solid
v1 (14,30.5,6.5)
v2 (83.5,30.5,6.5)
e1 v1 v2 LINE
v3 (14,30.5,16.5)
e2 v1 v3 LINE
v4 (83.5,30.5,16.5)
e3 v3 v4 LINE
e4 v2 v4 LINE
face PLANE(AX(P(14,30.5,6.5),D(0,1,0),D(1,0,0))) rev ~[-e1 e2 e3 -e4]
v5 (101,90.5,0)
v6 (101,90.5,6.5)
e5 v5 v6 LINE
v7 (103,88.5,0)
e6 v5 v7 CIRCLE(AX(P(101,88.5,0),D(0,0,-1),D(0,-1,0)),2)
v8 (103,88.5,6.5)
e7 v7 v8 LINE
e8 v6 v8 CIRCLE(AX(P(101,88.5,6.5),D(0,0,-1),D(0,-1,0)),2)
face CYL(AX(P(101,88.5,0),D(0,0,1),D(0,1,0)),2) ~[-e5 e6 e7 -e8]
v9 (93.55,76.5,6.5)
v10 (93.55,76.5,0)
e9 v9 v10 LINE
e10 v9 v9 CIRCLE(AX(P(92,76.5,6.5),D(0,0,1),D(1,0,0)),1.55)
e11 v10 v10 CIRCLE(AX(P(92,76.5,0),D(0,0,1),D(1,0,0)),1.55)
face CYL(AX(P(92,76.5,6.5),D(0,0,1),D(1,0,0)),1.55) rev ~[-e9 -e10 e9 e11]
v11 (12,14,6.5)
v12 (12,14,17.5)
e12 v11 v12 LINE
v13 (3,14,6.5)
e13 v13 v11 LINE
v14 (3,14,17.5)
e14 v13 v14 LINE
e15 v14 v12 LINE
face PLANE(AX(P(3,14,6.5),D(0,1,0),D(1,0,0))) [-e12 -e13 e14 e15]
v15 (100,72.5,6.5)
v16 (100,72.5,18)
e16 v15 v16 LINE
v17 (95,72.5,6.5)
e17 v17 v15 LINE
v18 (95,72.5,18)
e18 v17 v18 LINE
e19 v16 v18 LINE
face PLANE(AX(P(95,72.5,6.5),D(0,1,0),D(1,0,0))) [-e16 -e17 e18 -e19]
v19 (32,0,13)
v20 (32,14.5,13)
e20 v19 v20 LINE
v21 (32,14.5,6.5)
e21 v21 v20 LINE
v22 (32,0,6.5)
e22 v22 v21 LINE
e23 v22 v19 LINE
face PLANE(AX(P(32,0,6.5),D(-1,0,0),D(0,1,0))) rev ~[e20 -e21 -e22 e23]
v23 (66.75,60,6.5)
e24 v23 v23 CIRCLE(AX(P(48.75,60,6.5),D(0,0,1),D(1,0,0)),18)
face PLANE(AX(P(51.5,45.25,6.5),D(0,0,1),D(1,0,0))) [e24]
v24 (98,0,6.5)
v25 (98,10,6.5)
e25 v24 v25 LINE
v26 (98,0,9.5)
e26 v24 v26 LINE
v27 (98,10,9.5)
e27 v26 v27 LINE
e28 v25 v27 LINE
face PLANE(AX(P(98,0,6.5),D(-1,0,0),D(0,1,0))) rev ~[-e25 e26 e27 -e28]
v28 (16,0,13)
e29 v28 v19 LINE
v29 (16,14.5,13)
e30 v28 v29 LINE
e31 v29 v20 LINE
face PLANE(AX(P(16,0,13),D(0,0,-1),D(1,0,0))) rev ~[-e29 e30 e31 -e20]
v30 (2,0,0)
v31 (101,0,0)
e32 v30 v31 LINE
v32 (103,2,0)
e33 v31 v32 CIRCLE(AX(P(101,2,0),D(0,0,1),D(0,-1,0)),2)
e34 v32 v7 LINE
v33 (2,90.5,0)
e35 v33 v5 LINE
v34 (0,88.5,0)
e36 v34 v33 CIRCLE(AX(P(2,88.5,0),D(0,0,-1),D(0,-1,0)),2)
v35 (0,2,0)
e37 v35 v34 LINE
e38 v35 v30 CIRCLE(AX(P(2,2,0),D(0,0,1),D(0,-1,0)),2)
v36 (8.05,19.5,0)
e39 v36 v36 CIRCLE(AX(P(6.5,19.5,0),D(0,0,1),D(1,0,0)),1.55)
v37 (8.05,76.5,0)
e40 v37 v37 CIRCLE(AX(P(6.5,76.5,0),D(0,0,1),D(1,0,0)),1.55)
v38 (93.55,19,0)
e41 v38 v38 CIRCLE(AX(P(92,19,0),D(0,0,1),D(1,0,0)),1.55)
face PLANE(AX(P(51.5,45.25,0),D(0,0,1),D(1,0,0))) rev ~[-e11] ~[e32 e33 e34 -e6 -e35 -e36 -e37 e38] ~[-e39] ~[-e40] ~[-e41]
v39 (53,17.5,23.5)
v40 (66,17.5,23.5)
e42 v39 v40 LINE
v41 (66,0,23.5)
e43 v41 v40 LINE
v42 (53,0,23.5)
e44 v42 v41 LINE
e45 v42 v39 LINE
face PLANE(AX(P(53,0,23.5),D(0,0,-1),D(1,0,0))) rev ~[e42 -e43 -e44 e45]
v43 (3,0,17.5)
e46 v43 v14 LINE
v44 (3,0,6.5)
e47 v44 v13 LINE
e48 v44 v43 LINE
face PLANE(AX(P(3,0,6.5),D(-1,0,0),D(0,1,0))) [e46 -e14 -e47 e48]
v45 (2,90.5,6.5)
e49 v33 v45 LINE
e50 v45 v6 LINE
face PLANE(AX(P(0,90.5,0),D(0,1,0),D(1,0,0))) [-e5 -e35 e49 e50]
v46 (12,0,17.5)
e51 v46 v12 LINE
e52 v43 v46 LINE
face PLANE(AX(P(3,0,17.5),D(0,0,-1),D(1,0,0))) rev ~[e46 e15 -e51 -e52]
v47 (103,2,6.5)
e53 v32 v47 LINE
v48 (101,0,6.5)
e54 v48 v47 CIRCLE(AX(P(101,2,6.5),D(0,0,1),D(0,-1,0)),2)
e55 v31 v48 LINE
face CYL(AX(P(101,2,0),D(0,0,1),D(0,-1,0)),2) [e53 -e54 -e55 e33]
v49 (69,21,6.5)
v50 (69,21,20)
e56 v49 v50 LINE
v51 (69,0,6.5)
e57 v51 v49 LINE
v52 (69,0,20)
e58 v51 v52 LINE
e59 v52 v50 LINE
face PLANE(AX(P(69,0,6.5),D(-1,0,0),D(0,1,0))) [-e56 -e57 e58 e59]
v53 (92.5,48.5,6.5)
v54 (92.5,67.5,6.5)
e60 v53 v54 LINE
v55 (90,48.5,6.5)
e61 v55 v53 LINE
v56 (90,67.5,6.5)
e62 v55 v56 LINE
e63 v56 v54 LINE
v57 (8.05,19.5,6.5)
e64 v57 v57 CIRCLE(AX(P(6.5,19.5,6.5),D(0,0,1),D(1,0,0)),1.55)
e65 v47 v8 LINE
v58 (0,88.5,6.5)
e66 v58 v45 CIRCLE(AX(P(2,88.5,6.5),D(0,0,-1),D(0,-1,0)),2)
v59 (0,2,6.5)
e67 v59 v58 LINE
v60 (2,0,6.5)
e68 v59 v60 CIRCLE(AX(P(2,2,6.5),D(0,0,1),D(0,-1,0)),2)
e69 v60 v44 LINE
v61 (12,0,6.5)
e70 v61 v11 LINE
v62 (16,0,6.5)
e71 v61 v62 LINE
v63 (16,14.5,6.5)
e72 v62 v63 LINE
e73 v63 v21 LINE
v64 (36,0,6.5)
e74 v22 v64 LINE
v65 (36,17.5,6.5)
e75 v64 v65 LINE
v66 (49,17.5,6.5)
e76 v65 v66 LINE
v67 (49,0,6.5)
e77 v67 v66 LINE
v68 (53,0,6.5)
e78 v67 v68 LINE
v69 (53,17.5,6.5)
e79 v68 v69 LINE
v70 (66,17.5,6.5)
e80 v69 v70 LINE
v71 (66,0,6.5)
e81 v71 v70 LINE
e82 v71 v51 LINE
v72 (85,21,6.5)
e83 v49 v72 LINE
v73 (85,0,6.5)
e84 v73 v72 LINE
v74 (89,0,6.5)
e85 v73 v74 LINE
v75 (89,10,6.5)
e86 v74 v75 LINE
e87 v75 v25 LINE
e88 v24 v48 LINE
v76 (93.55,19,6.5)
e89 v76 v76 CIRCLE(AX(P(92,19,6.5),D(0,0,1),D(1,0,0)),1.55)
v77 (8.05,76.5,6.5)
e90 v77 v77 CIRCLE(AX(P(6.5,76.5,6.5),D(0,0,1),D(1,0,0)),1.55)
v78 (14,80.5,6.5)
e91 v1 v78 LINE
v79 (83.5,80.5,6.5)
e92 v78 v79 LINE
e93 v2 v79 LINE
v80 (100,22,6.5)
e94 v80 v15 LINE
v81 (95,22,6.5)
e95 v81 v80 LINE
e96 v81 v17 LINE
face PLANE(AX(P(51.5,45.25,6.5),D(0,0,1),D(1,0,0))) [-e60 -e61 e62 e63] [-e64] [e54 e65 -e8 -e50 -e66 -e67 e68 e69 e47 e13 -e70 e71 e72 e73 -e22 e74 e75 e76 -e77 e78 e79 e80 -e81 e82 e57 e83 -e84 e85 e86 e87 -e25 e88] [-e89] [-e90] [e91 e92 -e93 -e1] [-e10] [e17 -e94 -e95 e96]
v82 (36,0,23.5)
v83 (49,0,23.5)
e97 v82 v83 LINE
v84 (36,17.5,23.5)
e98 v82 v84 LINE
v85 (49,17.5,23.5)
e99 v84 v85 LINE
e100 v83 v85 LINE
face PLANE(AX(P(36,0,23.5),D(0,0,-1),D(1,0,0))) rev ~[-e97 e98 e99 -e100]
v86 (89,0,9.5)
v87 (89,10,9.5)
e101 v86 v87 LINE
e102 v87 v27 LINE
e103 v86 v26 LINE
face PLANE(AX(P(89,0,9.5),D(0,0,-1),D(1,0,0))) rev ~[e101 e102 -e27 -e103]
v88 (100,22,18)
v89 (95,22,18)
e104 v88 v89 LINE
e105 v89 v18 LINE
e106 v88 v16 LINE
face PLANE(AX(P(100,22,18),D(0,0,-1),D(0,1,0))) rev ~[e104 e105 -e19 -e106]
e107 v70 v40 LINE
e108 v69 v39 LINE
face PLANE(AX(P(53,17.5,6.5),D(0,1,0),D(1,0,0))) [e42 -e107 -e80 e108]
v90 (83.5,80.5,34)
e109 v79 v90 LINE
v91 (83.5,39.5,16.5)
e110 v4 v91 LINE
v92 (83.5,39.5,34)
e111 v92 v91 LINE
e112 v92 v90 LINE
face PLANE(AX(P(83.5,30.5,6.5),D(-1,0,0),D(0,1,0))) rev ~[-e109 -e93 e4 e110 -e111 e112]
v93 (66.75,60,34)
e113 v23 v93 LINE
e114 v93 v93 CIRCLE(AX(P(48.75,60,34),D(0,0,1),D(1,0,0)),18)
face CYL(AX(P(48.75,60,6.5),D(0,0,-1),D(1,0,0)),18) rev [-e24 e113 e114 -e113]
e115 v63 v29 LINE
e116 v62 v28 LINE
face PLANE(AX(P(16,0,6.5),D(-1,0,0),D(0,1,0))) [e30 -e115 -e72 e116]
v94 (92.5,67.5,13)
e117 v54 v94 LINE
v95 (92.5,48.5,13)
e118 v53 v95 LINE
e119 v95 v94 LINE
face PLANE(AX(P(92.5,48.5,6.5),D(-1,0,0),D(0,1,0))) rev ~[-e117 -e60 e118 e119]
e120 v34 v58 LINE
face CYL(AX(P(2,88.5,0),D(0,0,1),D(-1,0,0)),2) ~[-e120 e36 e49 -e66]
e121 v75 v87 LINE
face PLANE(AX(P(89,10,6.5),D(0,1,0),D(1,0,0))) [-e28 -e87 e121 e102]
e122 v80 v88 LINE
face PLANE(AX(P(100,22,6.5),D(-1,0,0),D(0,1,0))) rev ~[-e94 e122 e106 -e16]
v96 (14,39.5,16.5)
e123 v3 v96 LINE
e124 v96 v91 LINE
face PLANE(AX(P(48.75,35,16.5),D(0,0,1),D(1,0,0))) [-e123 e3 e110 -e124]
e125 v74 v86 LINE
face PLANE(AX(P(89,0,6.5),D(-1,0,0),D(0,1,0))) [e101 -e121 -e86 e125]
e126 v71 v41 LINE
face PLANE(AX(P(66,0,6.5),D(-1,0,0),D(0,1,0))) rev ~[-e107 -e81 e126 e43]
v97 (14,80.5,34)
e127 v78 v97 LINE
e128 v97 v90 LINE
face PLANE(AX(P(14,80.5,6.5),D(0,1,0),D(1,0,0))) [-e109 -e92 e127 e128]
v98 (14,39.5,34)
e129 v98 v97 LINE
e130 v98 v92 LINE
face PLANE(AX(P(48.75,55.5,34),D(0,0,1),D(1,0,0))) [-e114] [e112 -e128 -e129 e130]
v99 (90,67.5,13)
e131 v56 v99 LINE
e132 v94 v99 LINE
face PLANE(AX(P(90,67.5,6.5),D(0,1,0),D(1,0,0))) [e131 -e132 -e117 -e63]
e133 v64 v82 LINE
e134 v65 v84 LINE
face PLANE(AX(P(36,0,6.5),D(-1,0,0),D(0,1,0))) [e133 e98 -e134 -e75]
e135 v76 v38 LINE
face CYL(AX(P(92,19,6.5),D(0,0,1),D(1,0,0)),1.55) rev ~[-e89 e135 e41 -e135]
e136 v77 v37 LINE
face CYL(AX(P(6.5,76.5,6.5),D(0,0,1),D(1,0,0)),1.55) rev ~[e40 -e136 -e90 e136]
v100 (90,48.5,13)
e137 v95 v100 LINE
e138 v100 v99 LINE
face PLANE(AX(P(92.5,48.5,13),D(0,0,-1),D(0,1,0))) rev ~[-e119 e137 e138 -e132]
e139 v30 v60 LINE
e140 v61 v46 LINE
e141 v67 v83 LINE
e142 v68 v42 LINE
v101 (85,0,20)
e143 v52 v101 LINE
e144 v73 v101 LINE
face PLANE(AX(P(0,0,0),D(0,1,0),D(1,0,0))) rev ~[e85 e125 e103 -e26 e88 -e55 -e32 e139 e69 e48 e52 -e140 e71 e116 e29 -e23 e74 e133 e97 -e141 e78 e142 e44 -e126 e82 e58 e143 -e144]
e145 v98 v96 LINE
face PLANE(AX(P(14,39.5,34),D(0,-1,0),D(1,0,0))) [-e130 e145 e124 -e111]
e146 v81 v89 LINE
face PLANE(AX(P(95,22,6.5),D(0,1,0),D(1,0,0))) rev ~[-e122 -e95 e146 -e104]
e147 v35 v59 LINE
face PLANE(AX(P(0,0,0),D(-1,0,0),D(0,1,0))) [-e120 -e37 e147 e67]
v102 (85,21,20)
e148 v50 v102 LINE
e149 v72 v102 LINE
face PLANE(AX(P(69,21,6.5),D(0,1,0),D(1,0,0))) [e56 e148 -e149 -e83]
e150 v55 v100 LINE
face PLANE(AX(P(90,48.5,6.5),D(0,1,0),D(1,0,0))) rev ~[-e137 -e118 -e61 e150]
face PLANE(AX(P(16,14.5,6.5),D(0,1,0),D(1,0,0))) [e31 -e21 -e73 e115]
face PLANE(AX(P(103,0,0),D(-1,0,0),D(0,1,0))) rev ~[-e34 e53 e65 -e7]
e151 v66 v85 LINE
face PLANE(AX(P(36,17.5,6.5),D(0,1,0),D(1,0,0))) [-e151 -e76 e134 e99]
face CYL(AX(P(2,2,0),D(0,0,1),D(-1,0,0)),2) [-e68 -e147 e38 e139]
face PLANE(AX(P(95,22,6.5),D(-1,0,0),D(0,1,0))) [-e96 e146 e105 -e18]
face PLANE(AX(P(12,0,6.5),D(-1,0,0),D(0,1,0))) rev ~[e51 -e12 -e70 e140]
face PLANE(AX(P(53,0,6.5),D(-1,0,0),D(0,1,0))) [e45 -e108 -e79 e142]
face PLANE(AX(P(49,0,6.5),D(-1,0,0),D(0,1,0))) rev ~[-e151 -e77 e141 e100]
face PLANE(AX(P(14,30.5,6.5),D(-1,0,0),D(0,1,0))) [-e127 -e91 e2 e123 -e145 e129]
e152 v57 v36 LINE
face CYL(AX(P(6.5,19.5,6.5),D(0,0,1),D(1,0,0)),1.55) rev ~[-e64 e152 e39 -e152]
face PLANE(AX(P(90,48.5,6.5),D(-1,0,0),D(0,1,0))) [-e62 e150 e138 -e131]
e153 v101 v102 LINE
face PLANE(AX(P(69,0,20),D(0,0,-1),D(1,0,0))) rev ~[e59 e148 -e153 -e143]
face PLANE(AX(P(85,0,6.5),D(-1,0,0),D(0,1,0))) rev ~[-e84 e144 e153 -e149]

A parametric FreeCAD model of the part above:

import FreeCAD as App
import Part
import Sketcher

V = App.Vector


def edges_at(feature, points):
    """Names of the edges that pass closest to the given points."""
    edges = feature.Shape.Edges
    near = lambda p: min(range(len(edges)), key=lambda i: edges[i].distToShape(Part.Vertex(*p))[0])
    return sorted({f"Edge{near(p) + 1}" for p in points})

doc = App.newDocument("Part")
params = doc.addObject("Spreadsheet::Sheet", "Params")
for row, (alias, value) in enumerate([
    ("sketch1_width", "103 mm"),
    ("sketch1_height", "90.5 mm"),
    ("pad1_length", "6.5 mm"),
    ("sketch2_diameter", "36 mm"),
    ("sketch2_width", "9 mm"),
    ("sketch2_width2", "16 mm"),
    ("sketch2_width3", "13 mm"),
    ("sketch2_width4", "5 mm"),
    ("pad2_length", "27.5 mm"),
    ("sketch3_width", "9 mm"),
    ("sketch3_height", "16.5 mm"),
    ("sketch4_width", "16 mm"),
    ("sketch4_height", "21 mm"),
    ("sketch5_width", "13 mm"),
    ("sketch5_height", "10.5 mm"),
    ("sketch6_width", "13 mm"),
    ("sketch6_height", "10.5 mm"),
    ("sketch7_width", "16 mm"),
    ("sketch7_height", "14 mm"),
    ("sketch8_width", "9 mm"),
    ("sketch8_height", "24.5 mm"),
    ("sketch9_height", "9 mm"),
    ("sketch9_width", "69.5 mm"),
    ("pocket7_length", "17.5 mm"),
    ("sketch10_diameter", "3.1 mm"),
    ("sketch11_width", "19 mm"),
    ("sketch11_height", "21 mm"),
    ("sketch12_height", "16 mm"),
    ("sketch12_width", "50.5 mm"),
    ("fillet_radius", "2 mm"),
], start=1):
    params.set(f"A{row}", alias)
    params.set(f"B{row}", "=" + value)
    params.setAlias(f"B{row}", alias)

body = doc.addObject("PartDesign::Body", "Body")

sketch1 = doc.addObject("Sketcher::SketchObject", "Sketch")
body.addObject(sketch1)
sketch1.AttachmentSupport = (doc.XY_Plane, [""])
sketch1.MapMode = "FlatFace"
sketch1.addGeometry([
    Part.LineSegment(V(0, 90, 0), V(0, 0, 0)),
    Part.LineSegment(V(0, 0, 0), V(103, 0, 0)),
    Part.LineSegment(V(103, 0, 0), V(103, 90, 0)),
    Part.LineSegment(V(103, 90, 0), V(0, 90, 0)),
], False)
sketch1.addConstraint([
    Sketcher.Constraint("Coincident", 0, 2, 1, 1),
    Sketcher.Constraint("Coincident", 1, 2, 2, 1),
    Sketcher.Constraint("Coincident", 2, 2, 3, 1),
    Sketcher.Constraint("Coincident", 3, 2, 0, 1),
    Sketcher.Constraint("Vertical", 0),
    Sketcher.Constraint("Horizontal", 1),
    Sketcher.Constraint("Vertical", 2),
    Sketcher.Constraint("Horizontal", 3),
    Sketcher.Constraint("Coincident", 0, 2, -1, 1),
    Sketcher.Constraint("DistanceX", 1, 1, 1, 2, 103.0),
    Sketcher.Constraint("DistanceY", 0, 2, 0, 1, 90.5),
])
sketch1.setExpression("Constraints[9]", "Params.sketch1_width")
sketch1.setExpression("Constraints[10]", "Params.sketch1_height")
pad1 = doc.addObject("PartDesign::Pad", "Pad")
body.addObject(pad1)
pad1.Profile = sketch1
pad1.setExpression("Length", "Params.pad1_length")

sketch2 = doc.addObject("Sketcher::SketchObject", "Sketch001")
body.addObject(sketch2)
sketch2.AttachmentSupport = (doc.XY_Plane, [""])
sketch2.MapMode = "FlatFace"
sketch2.AttachmentOffset = App.Placement(V(0, 0, 6.5), App.Rotation())
sketch2.addGeometry([
    Part.LineSegment(V(3, 14, 0), V(3, 0, 0)),
    Part.LineSegment(V(3, 0, 0), V(12, 0, 0)),
    Part.LineSegment(V(12, 0, 0), V(12, 14, 0)),
    Part.LineSegment(V(12, 14, 0), V(3, 14, 0)),
    Part.LineSegment(V(16, 14.5, 0), V(16, 0, 0)),
    Part.LineSegment(V(16, 0, 0), V(32, 0, 0)),
    Part.LineSegment(V(32, 0, 0), V(32, 14.5, 0)),
    Part.LineSegment(V(32, 14.5, 0), V(16, 14.5, 0)),
    Part.LineSegment(V(36, 17.5, 0), V(36, 0, 0)),
    Part.LineSegment(V(36, 0, 0), V(49, 0, 0)),
    Part.LineSegment(V(49, 0, 0), V(49, 17.5, 0)),
    Part.LineSegment(V(49, 17.5, 0), V(36, 17.5, 0)),
    Part.LineSegment(V(53, 17.5, 0), V(53, 0, 0)),
    Part.LineSegment(V(53, 0, 0), V(66, 0, 0)),
    Part.LineSegment(V(66, 0, 0), V(66, 17.5, 0)),
    Part.LineSegment(V(66, 17.5, 0), V(53, 17.5, 0)),
    Part.LineSegment(V(69, 21, 0), V(69, 0, 0)),
    Part.LineSegment(V(69, 0, 0), V(85, 0, 0)),
    Part.LineSegment(V(85, 0, 0), V(85, 21, 0)),
    Part.LineSegment(V(85, 21, 0), V(69, 21, 0)),
    Part.LineSegment(V(89, 10, 0), V(89, 0, 0)),
    Part.LineSegment(V(89, 0, 0), V(98, 0, 0)),
    Part.LineSegment(V(98, 0, 0), V(98, 10, 0)),
    Part.LineSegment(V(98, 10, 0), V(89, 10, 0)),
    Part.LineSegment(V(14, 80.5, 0), V(14, 30.5, 0)),
    Part.LineSegment(V(14, 30.5, 0), V(83.5, 30.5, 0)),
    Part.LineSegment(V(83.5, 30.5, 0), V(83.5, 80.5, 0)),
    Part.LineSegment(V(83.5, 80.5, 0), V(14, 80.5, 0)),
    Part.Circle(V(48.8, 60, 0), V(0, 0, 1), 18),
    Part.LineSegment(V(90, 67.5, 0), V(90, 48.5, 0)),
    Part.LineSegment(V(90, 48.5, 0), V(92.5, 48.5, 0)),
    Part.LineSegment(V(92.5, 48.5, 0), V(92.5, 67.5, 0)),
    Part.LineSegment(V(92.5, 67.5, 0), V(90, 67.5, 0)),
    Part.LineSegment(V(95, 72.5, 0), V(95, 22, 0)),
    Part.LineSegment(V(95, 22, 0), V(100, 22, 0)),
    Part.LineSegment(V(100, 22, 0), V(100, 72.5, 0)),
    Part.LineSegment(V(100, 72.5, 0), V(95, 72.5, 0)),
], False)
sketch2.addConstraint([
    Sketcher.Constraint("Coincident", 0, 2, 1, 1),
    Sketcher.Constraint("Coincident", 1, 2, 2, 1),
    Sketcher.Constraint("Coincident", 2, 2, 3, 1),
    Sketcher.Constraint("Coincident", 3, 2, 0, 1),
    Sketcher.Constraint("Coincident", 4, 2, 5, 1),
    Sketcher.Constraint("Coincident", 5, 2, 6, 1),
    Sketcher.Constraint("Coincident", 6, 2, 7, 1),
    Sketcher.Constraint("Coincident", 7, 2, 4, 1),
    Sketcher.Constraint("Coincident", 8, 2, 9, 1),
    Sketcher.Constraint("Coincident", 9, 2, 10, 1),
    Sketcher.Constraint("Coincident", 10, 2, 11, 1),
    Sketcher.Constraint("Coincident", 11, 2, 8, 1),
    Sketcher.Constraint("Coincident", 12, 2, 13, 1),
    Sketcher.Constraint("Coincident", 13, 2, 14, 1),
    Sketcher.Constraint("Coincident", 14, 2, 15, 1),
    Sketcher.Constraint("Coincident", 15, 2, 12, 1),
    Sketcher.Constraint("Coincident", 16, 2, 17, 1),
    Sketcher.Constraint("Coincident", 17, 2, 18, 1),
    Sketcher.Constraint("Coincident", 18, 2, 19, 1),
    Sketcher.Constraint("Coincident", 19, 2, 16, 1),
    Sketcher.Constraint("Coincident", 20, 2, 21, 1),
    Sketcher.Constraint("Coincident", 21, 2, 22, 1),
    Sketcher.Constraint("Coincident", 22, 2, 23, 1),
    Sketcher.Constraint("Coincident", 23, 2, 20, 1),
    Sketcher.Constraint("Coincident", 24, 2, 25, 1),
    Sketcher.Constraint("Coincident", 25, 2, 26, 1),
    Sketcher.Constraint("Coincident", 26, 2, 27, 1),
    Sketcher.Constraint("Coincident", 27, 2, 24, 1),
    Sketcher.Constraint("Coincident", 29, 2, 30, 1),
    Sketcher.Constraint("Coincident", 30, 2, 31, 1),
    Sketcher.Constraint("Coincident", 31, 2, 32, 1),
    Sketcher.Constraint("Coincident", 32, 2, 29, 1),
    Sketcher.Constraint("Coincident", 33, 2, 34, 1),
    Sketcher.Constraint("Coincident", 34, 2, 35, 1),
    Sketcher.Constraint("Coincident", 35, 2, 36, 1),
    Sketcher.Constraint("Coincident", 36, 2, 33, 1),
    Sketcher.Constraint("Vertical", 0),
    Sketcher.Constraint("Horizontal", 1),
    Sketcher.Constraint("Vertical", 2),
    Sketcher.Constraint("Horizontal", 3),
    Sketcher.Constraint("Vertical", 4),
    Sketcher.Constraint("Horizontal", 5),
    Sketcher.Constraint("Vertical", 6),
    Sketcher.Constraint("Horizontal", 7),
    Sketcher.Constraint("Vertical", 8),
    Sketcher.Constraint("Horizontal", 9),
    Sketcher.Constraint("Vertical", 10),
    Sketcher.Constraint("Horizontal", 11),
    Sketcher.Constraint("Vertical", 12),
    Sketcher.Constraint("Horizontal", 13),
    Sketcher.Constraint("Vertical", 14),
    Sketcher.Constraint("Horizontal", 15),
    Sketcher.Constraint("Vertical", 16),
    Sketcher.Constraint("Horizontal", 17),
    Sketcher.Constraint("Vertical", 18),
    Sketcher.Constraint("Horizontal", 19),
    Sketcher.Constraint("Vertical", 20),
    Sketcher.Constraint("Horizontal", 21),
    Sketcher.Constraint("Vertical", 22),
    Sketcher.Constraint("Horizontal", 23),
    Sketcher.Constraint("Vertical", 24),
    Sketcher.Constraint("Horizontal", 25),
    Sketcher.Constraint("Vertical", 26),
    Sketcher.Constraint("Horizontal", 27),
    Sketcher.Constraint("Vertical", 29),
    Sketcher.Constraint("Horizontal", 30),
    Sketcher.Constraint("Vertical", 31),
    Sketcher.Constraint("Horizontal", 32),
    Sketcher.Constraint("Vertical", 33),
    Sketcher.Constraint("Horizontal", 34),
    Sketcher.Constraint("Vertical", 35),
    Sketcher.Constraint("Horizontal", 36),
    Sketcher.Constraint("PointOnObject", 0, 2, -1),
    Sketcher.Constraint("PointOnObject", 4, 2, -1),
    Sketcher.Constraint("PointOnObject", 8, 2, -1),
    Sketcher.Constraint("PointOnObject", 12, 2, -1),
    Sketcher.Constraint("PointOnObject", 16, 2, -1),
    Sketcher.Constraint("PointOnObject", 20, 2, -1),
    Sketcher.Constraint("Horizontal", 11, 2, 14, 2),
    Sketcher.Constraint("Equal", 11, 13),
    Sketcher.Constraint("Equal", 7, 17),
    Sketcher.Constraint("Equal", 3, 21),
    Sketcher.Constraint("Diameter", 28, 36.0),
    Sketcher.Constraint("DistanceX", 1, 1, 1, 2, 9.0),
    Sketcher.Constraint("DistanceX", 5, 1, 5, 2, 16.0),
    Sketcher.Constraint("DistanceX", 9, 1, 9, 2, 13.0),
    Sketcher.Constraint("DistanceX", 34, 1, 34, 2, 5.0),
    Sketcher.Constraint("DistanceY", 0, 2, 0, 1, 14.0),
    Sketcher.Constraint("DistanceY", 16, 2, 16, 1, 21.0),
    Sketcher.Constraint("DistanceY", 20, 2, 20, 1, 10.0),
    Sketcher.Constraint("DistanceY", 24, 2, 24, 1, 50.0),
    Sketcher.Constraint("DistanceY", 29, 2, 29, 1, 19.0),
    Sketcher.Constraint("DistanceX", 25, 1, 25, 2, 69.5),
    Sketcher.Constraint("DistanceX", 30, 1, 30, 2, 2.5),
    Sketcher.Constraint("DistanceY", 4, 2, 4, 1, 14.5),
    Sketcher.Constraint("DistanceY", 8, 2, 8, 1, 17.5),
    Sketcher.Constraint("DistanceY", 33, 2, 33, 1, 50.5),
    Sketcher.Constraint("DistanceY", -1, 1, 28, 3, 60.0),
    Sketcher.Constraint("DistanceX", -1, 1, 0, 2, 3.0),
    Sketcher.Constraint("DistanceX", -1, 1, 4, 2, 16.0),
    Sketcher.Constraint("DistanceX", -1, 1, 8, 2, 36.0),
    Sketcher.Constraint("DistanceX", -1, 1, 12, 2, 53.0),
    Sketcher.Constraint("DistanceX", -1, 1, 16, 2, 69.0),
    Sketcher.Constraint("DistanceX", -1, 1, 20, 2, 89.0),
    Sketcher.Constraint("DistanceX", -1, 1, 24, 2, 14.0),
    Sketcher.Constraint("DistanceX", -1, 1, 29, 2, 90.0),
    Sketcher.Constraint("DistanceX", -1, 1, 33, 2, 95.0),
    Sketcher.Constraint("DistanceY", -1, 1, 33, 2, 22.0),
    Sketcher.Constraint("DistanceY", 7, 2, 24, 2, 16.0),
    Sketcher.Constraint("DistanceY", 25, 2, 29, 2, 18.0),
    Sketcher.Constraint("DistanceX", -1, 1, 28, 3, 48.75),
])
sketch2.setExpression("Constraints[82]", "Params.sketch2_diameter")
sketch2.setExpression("Constraints[83]", "Params.sketch2_width")
sketch2.setExpression("Constraints[84]", "Params.sketch2_width2")
sketch2.setExpression("Constraints[85]", "Params.sketch2_width3")
sketch2.setExpression("Constraints[86]", "Params.sketch2_width4")
pad2 = doc.addObject("PartDesign::Pad", "Pad001")
body.addObject(pad2)
pad2.Profile = sketch2
pad2.setExpression("Length", "Params.pad2_length")

sketch3 = doc.addObject("Sketcher::SketchObject", "Sketch002")
body.addObject(sketch3)
sketch3.AttachmentSupport = (doc.XZ_Plane, [""])
sketch3.MapMode = "FlatFace"
sketch3.addGeometry([
    Part.LineSegment(V(3, 34, 0), V(3, 18, 0)),
    Part.LineSegment(V(3, 18, 0), V(12, 18, 0)),
    Part.LineSegment(V(12, 18, 0), V(12, 34, 0)),
    Part.LineSegment(V(12, 34, 0), V(3, 34, 0)),
], False)
sketch3.addConstraint([
    Sketcher.Constraint("Coincident", 0, 2, 1, 1),
    Sketcher.Constraint("Coincident", 1, 2, 2, 1),
    Sketcher.Constraint("Coincident", 2, 2, 3, 1),
    Sketcher.Constraint("Coincident", 3, 2, 0, 1),
    Sketcher.Constraint("Vertical", 0),
    Sketcher.Constraint("Horizontal", 1),
    Sketcher.Constraint("Vertical", 2),
    Sketcher.Constraint("Horizontal", 3),
    Sketcher.Constraint("DistanceX", 1, 1, 1, 2, 9.0),
    Sketcher.Constraint("DistanceY", 0, 2, 0, 1, 16.5),
    Sketcher.Constraint("DistanceX", -1, 1, 0, 2, 3.0),
    Sketcher.Constraint("DistanceY", -1, 1, 2, 2, 34.0),
])
sketch3.setExpression("Constraints[8]", "Params.sketch3_width")
sketch3.setExpression("Constraints[9]", "Params.sketch3_height")
pocket1 = doc.addObject("PartDesign::Pocket", "Pocket")
body.addObject(pocket1)
pocket1.Profile = sketch3
pocket1.Type = "UpToFirst"

sketch4 = doc.addObject("Sketcher::SketchObject", "Sketch003")
body.addObject(sketch4)
sketch4.AttachmentSupport = (doc.XZ_Plane, [""])
sketch4.MapMode = "FlatFace"
sketch4.addGeometry([
    Part.LineSegment(V(16, 34, 0), V(16, 13, 0)),
    Part.LineSegment(V(16, 13, 0), V(32, 13, 0)),
    Part.LineSegment(V(32, 13, 0), V(32, 34, 0)),
    Part.LineSegment(V(32, 34, 0), V(16, 34, 0)),
], False)
sketch4.addConstraint([
    Sketcher.Constraint("Coincident", 0, 2, 1, 1),
    Sketcher.Constraint("Coincident", 1, 2, 2, 1),
    Sketcher.Constraint("Coincident", 2, 2, 3, 1),
    Sketcher.Constraint("Coincident", 3, 2, 0, 1),
    Sketcher.Constraint("Vertical", 0),
    Sketcher.Constraint("Horizontal", 1),
    Sketcher.Constraint("Vertical", 2),
    Sketcher.Constraint("Horizontal", 3),
    Sketcher.Constraint("DistanceX", 1, 1, 1, 2, 16.0),
    Sketcher.Constraint("DistanceY", 0, 2, 0, 1, 21.0),
    Sketcher.Constraint("DistanceX", -1, 1, 0, 2, 16.0),
    Sketcher.Constraint("DistanceY", -1, 1, 0, 2, 13.0),
])
sketch4.setExpression("Constraints[8]", "Params.sketch4_width")
sketch4.setExpression("Constraints[9]", "Params.sketch4_height")
pocket2 = doc.addObject("PartDesign::Pocket", "Pocket001")
body.addObject(pocket2)
pocket2.Profile = sketch4
pocket2.Type = "UpToFirst"

sketch5 = doc.addObject("Sketcher::SketchObject", "Sketch004")
body.addObject(sketch5)
sketch5.AttachmentSupport = (doc.XZ_Plane, [""])
sketch5.MapMode = "FlatFace"
sketch5.addGeometry([
    Part.LineSegment(V(36, 34, 0), V(36, 24, 0)),
    Part.LineSegment(V(36, 24, 0), V(49, 24, 0)),
    Part.LineSegment(V(49, 24, 0), V(49, 34, 0)),
    Part.LineSegment(V(49, 34, 0), V(36, 34, 0)),
], False)
sketch5.addConstraint([
    Sketcher.Constraint("Coincident", 0, 2, 1, 1),
    Sketcher.Constraint("Coincident", 1, 2, 2, 1),
    Sketcher.Constraint("Coincident", 2, 2, 3, 1),
    Sketcher.Constraint("Coincident", 3, 2, 0, 1),
    Sketcher.Constraint("Vertical", 0),
    Sketcher.Constraint("Horizontal", 1),
    Sketcher.Constraint("Vertical", 2),
    Sketcher.Constraint("Horizontal", 3),
    Sketcher.Constraint("DistanceX", 1, 1, 1, 2, 13.0),
    Sketcher.Constraint("DistanceY", 0, 2, 0, 1, 10.5),
    Sketcher.Constraint("DistanceX", -1, 1, 0, 2, 36.0),
    Sketcher.Constraint("DistanceY", -1, 1, 2, 2, 34.0),
])
sketch5.setExpression("Constraints[8]", "Params.sketch5_width")
sketch5.setExpression("Constraints[9]", "Params.sketch5_height")
pocket3 = doc.addObject("PartDesign::Pocket", "Pocket002")
body.addObject(pocket3)
pocket3.Profile = sketch5
pocket3.Type = "UpToFirst"

sketch6 = doc.addObject("Sketcher::SketchObject", "Sketch005")
body.addObject(sketch6)
sketch6.AttachmentSupport = (doc.XZ_Plane, [""])
sketch6.MapMode = "FlatFace"
sketch6.addGeometry([
    Part.LineSegment(V(53, 34, 0), V(53, 24, 0)),
    Part.LineSegment(V(53, 24, 0), V(66, 24, 0)),
    Part.LineSegment(V(66, 24, 0), V(66, 34, 0)),
    Part.LineSegment(V(66, 34, 0), V(53, 34, 0)),
], False)
sketch6.addConstraint([
    Sketcher.Constraint("Coincident", 0, 2, 1, 1),
    Sketcher.Constraint("Coincident", 1, 2, 2, 1),
    Sketcher.Constraint("Coincident", 2, 2, 3, 1),
    Sketcher.Constraint("Coincident", 3, 2, 0, 1),
    Sketcher.Constraint("Vertical", 0),
    Sketcher.Constraint("Horizontal", 1),
    Sketcher.Constraint("Vertical", 2),
    Sketcher.Constraint("Horizontal", 3),
    Sketcher.Constraint("DistanceX", 1, 1, 1, 2, 13.0),
    Sketcher.Constraint("DistanceY", 0, 2, 0, 1, 10.5),
    Sketcher.Constraint("DistanceX", -1, 1, 0, 2, 53.0),
    Sketcher.Constraint("DistanceY", -1, 1, 2, 2, 34.0),
])
sketch6.setExpression("Constraints[8]", "Params.sketch6_width")
sketch6.setExpression("Constraints[9]", "Params.sketch6_height")
pocket4 = doc.addObject("PartDesign::Pocket", "Pocket003")
body.addObject(pocket4)
pocket4.Profile = sketch6
pocket4.Type = "UpToFirst"

sketch7 = doc.addObject("Sketcher::SketchObject", "Sketch006")
body.addObject(sketch7)
sketch7.AttachmentSupport = (doc.XZ_Plane, [""])
sketch7.MapMode = "FlatFace"
sketch7.addGeometry([
    Part.LineSegment(V(69, 34, 0), V(69, 20, 0)),
    Part.LineSegment(V(69, 20, 0), V(85, 20, 0)),
    Part.LineSegment(V(85, 20, 0), V(85, 34, 0)),
    Part.LineSegment(V(85, 34, 0), V(69, 34, 0)),
], False)
sketch7.addConstraint([
    Sketcher.Constraint("Coincident", 0, 2, 1, 1),
    Sketcher.Constraint("Coincident", 1, 2, 2, 1),
    Sketcher.Constraint("Coincident", 2, 2, 3, 1),
    Sketcher.Constraint("Coincident", 3, 2, 0, 1),
    Sketcher.Constraint("Vertical", 0),
    Sketcher.Constraint("Horizontal", 1),
    Sketcher.Constraint("Vertical", 2),
    Sketcher.Constraint("Horizontal", 3),
    Sketcher.Constraint("DistanceX", 1, 1, 1, 2, 16.0),
    Sketcher.Constraint("DistanceY", 0, 2, 0, 1, 14.0),
    Sketcher.Constraint("DistanceX", -1, 1, 0, 2, 69.0),
    Sketcher.Constraint("DistanceY", -1, 1, 0, 2, 20.0),
])
sketch7.setExpression("Constraints[8]", "Params.sketch7_width")
sketch7.setExpression("Constraints[9]", "Params.sketch7_height")
pocket5 = doc.addObject("PartDesign::Pocket", "Pocket004")
body.addObject(pocket5)
pocket5.Profile = sketch7
pocket5.Type = "UpToFirst"

sketch8 = doc.addObject("Sketcher::SketchObject", "Sketch007")
body.addObject(sketch8)
sketch8.AttachmentSupport = (doc.XZ_Plane, [""])
sketch8.MapMode = "FlatFace"
sketch8.addGeometry([
    Part.LineSegment(V(89, 34, 0), V(89, 10, 0)),
    Part.LineSegment(V(89, 10, 0), V(98, 10, 0)),
    Part.LineSegment(V(98, 10, 0), V(98, 34, 0)),
    Part.LineSegment(V(98, 34, 0), V(89, 34, 0)),
], False)
sketch8.addConstraint([
    Sketcher.Constraint("Coincident", 0, 2, 1, 1),
    Sketcher.Constraint("Coincident", 1, 2, 2, 1),
    Sketcher.Constraint("Coincident", 2, 2, 3, 1),
    Sketcher.Constraint("Coincident", 3, 2, 0, 1),
    Sketcher.Constraint("Vertical", 0),
    Sketcher.Constraint("Horizontal", 1),
    Sketcher.Constraint("Vertical", 2),
    Sketcher.Constraint("Horizontal", 3),
    Sketcher.Constraint("DistanceX", 1, 1, 1, 2, 9.0),
    Sketcher.Constraint("DistanceY", 0, 2, 0, 1, 24.5),
    Sketcher.Constraint("DistanceX", -1, 1, 0, 2, 89.0),
    Sketcher.Constraint("DistanceY", -1, 1, 2, 2, 34.0),
])
sketch8.setExpression("Constraints[8]", "Params.sketch8_width")
sketch8.setExpression("Constraints[9]", "Params.sketch8_height")
pocket6 = doc.addObject("PartDesign::Pocket", "Pocket005")
body.addObject(pocket6)
pocket6.Profile = sketch8
pocket6.Type = "UpToFirst"

sketch9 = doc.addObject("Sketcher::SketchObject", "Sketch008")
body.addObject(sketch9)
sketch9.AttachmentSupport = (doc.XY_Plane, [""])
sketch9.MapMode = "FlatFace"
sketch9.AttachmentOffset = App.Placement(V(0, 0, 34), App.Rotation())
sketch9.addGeometry([
    Part.LineSegment(V(14, 40, 0), V(14, 30, 0)),
    Part.LineSegment(V(14, 30, 0), V(84, 30, 0)),
    Part.LineSegment(V(84, 30, 0), V(84, 40, 0)),
    Part.LineSegment(V(84, 40, 0), V(14, 40, 0)),
], False)
sketch9.addConstraint([
    Sketcher.Constraint("Coincident", 0, 2, 1, 1),
    Sketcher.Constraint("Coincident", 1, 2, 2, 1),
    Sketcher.Constraint("Coincident", 2, 2, 3, 1),
    Sketcher.Constraint("Coincident", 3, 2, 0, 1),
    Sketcher.Constraint("Vertical", 0),
    Sketcher.Constraint("Horizontal", 1),
    Sketcher.Constraint("Vertical", 2),
    Sketcher.Constraint("Horizontal", 3),
    Sketcher.Constraint("DistanceY", 0, 2, 0, 1, 9.0),
    Sketcher.Constraint("DistanceX", 1, 1, 1, 2, 69.5),
    Sketcher.Constraint("DistanceX", -1, 1, 0, 2, 14.0),
    Sketcher.Constraint("DistanceY", -1, 1, 0, 2, 30.5),
])
sketch9.setExpression("Constraints[8]", "Params.sketch9_height")
sketch9.setExpression("Constraints[9]", "Params.sketch9_width")
pocket7 = doc.addObject("PartDesign::Pocket", "Pocket006")
body.addObject(pocket7)
pocket7.Profile = sketch9
pocket7.setExpression("Length", "Params.pocket7_length")

sketch10 = doc.addObject("Sketcher::SketchObject", "Sketch009")
body.addObject(sketch10)
sketch10.AttachmentSupport = (doc.XY_Plane, [""])
sketch10.MapMode = "FlatFace"
sketch10.AttachmentOffset = App.Placement(V(0, 0, 6.5), App.Rotation())
sketch10.addGeometry([
    Part.Circle(V(92, 19, 0), V(0, 0, 1), 1.6),
    Part.Circle(V(92, 76.5, 0), V(0, 0, 1), 1.6),
    Part.Circle(V(6.5, 76.5, 0), V(0, 0, 1), 1.6),
    Part.Circle(V(6.5, 19.5, 0), V(0, 0, 1), 1.6),
], False)
sketch10.addConstraint([
    Sketcher.Constraint("Equal", 0, 1),
    Sketcher.Constraint("Equal", 1, 2),
    Sketcher.Constraint("Equal", 2, 3),
    Sketcher.Constraint("Horizontal", 1, 3, 2, 3),
    Sketcher.Constraint("Vertical", 0, 3, 1, 3),
    Sketcher.Constraint("Vertical", 2, 3, 3, 3),
    Sketcher.Constraint("Diameter", 0, 3.1),
    Sketcher.Constraint("DistanceX", -1, 1, 0, 3, 92.0),
    Sketcher.Constraint("DistanceY", -1, 1, 0, 3, 19.0),
    Sketcher.Constraint("DistanceY", 3, 3, 2, 3, 57.0),
    Sketcher.Constraint("DistanceY", -1, 1, 1, 3, 76.5),
    Sketcher.Constraint("DistanceX", -1, 1, 2, 3, 6.5),
])
sketch10.setExpression("Constraints[6]", "Params.sketch10_diameter")
pocket8 = doc.addObject("PartDesign::Pocket", "Pocket007")
body.addObject(pocket8)
pocket8.Profile = sketch10
pocket8.Type = "ThroughAll"

sketch11 = doc.addObject("Sketcher::SketchObject", "Sketch010")
body.addObject(sketch11)
sketch11.AttachmentSupport = (doc.YZ_Plane, [""])
sketch11.MapMode = "FlatFace"
sketch11.AttachmentOffset = App.Placement(V(0, 0, 92.5), App.Rotation())
sketch11.addGeometry([
    Part.LineSegment(V(68, 34, 0), V(48, 34, 0)),
    Part.LineSegment(V(48, 34, 0), V(48, 13, 0)),
    Part.LineSegment(V(48, 13, 0), V(68, 13, 0)),
    Part.LineSegment(V(68, 13, 0), V(68, 34, 0)),
], False)
sketch11.addConstraint([
    Sketcher.Constraint("Coincident", 0, 2, 1, 1),
    Sketcher.Constraint("Coincident", 1, 2, 2, 1),
    Sketcher.Constraint("Coincident", 2, 2, 3, 1),
    Sketcher.Constraint("Coincident", 3, 2, 0, 1),
    Sketcher.Constraint("Horizontal", 0),
    Sketcher.Constraint("Vertical", 1),
    Sketcher.Constraint("Horizontal", 2),
    Sketcher.Constraint("Vertical", 3),
    Sketcher.Constraint("DistanceX", 0, 2, 0, 1, 19.0),
    Sketcher.Constraint("DistanceY", 1, 2, 1, 1, 21.0),
    Sketcher.Constraint("DistanceY", -1, 1, 0, 2, 34.0),
    Sketcher.Constraint("DistanceX", -1, 1, 0, 2, 48.5),
])
sketch11.setExpression("Constraints[8]", "Params.sketch11_width")
sketch11.setExpression("Constraints[9]", "Params.sketch11_height")
pocket9 = doc.addObject("PartDesign::Pocket", "Pocket008")
body.addObject(pocket9)
pocket9.Profile = sketch11
pocket9.Type = "UpToFirst"

sketch12 = doc.addObject("Sketcher::SketchObject", "Sketch011")
body.addObject(sketch12)
sketch12.AttachmentSupport = (doc.YZ_Plane, [""])
sketch12.MapMode = "FlatFace"
sketch12.AttachmentOffset = App.Placement(V(0, 0, 100), App.Rotation())
sketch12.addGeometry([
    Part.LineSegment(V(72, 34, 0), V(22, 34, 0)),
    Part.LineSegment(V(22, 34, 0), V(22, 18, 0)),
    Part.LineSegment(V(22, 18, 0), V(72, 18, 0)),
    Part.LineSegment(V(72, 18, 0), V(72, 34, 0)),
], False)
sketch12.addConstraint([
    Sketcher.Constraint("Coincident", 0, 2, 1, 1),
    Sketcher.Constraint("Coincident", 1, 2, 2, 1),
    Sketcher.Constraint("Coincident", 2, 2, 3, 1),
    Sketcher.Constraint("Coincident", 3, 2, 0, 1),
    Sketcher.Constraint("Horizontal", 0),
    Sketcher.Constraint("Vertical", 1),
    Sketcher.Constraint("Horizontal", 2),
    Sketcher.Constraint("Vertical", 3),
    Sketcher.Constraint("DistanceY", 1, 2, 1, 1, 16.0),
    Sketcher.Constraint("DistanceX", 0, 2, 0, 1, 50.5),
    Sketcher.Constraint("DistanceX", -1, 1, 0, 2, 22.0),
    Sketcher.Constraint("DistanceY", -1, 1, 0, 2, 34.0),
])
sketch12.setExpression("Constraints[8]", "Params.sketch12_height")
sketch12.setExpression("Constraints[9]", "Params.sketch12_width")
pocket10 = doc.addObject("PartDesign::Pocket", "Pocket009")
body.addObject(pocket10)
pocket10.Profile = sketch12
pocket10.Type = "UpToFirst"
doc.recompute()

fillet = doc.addObject("PartDesign::Fillet", "Fillet")
body.addObject(fillet)
fillet.Base = (pocket10, edges_at(pocket10, [
    (0, 90.5, 3.25),
    (103, 90.5, 3.25),
    (103, 0, 3.25),
    (0, 0, 3.25),
]))
fillet.setExpression("Radius", "Params.fillet_radius")

doc.recompute()
